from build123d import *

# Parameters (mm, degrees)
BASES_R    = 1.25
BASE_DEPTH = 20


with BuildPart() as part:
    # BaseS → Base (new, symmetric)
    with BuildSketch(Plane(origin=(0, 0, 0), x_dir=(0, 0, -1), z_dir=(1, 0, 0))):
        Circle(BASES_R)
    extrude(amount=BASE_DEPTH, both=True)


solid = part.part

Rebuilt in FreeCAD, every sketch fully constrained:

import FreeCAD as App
import Part
import Sketcher

V = App.Vector
Q = App.Units.Quantity

doc = App.newDocument("Part")
body = doc.addObject("PartDesign::Body", "Body")

# Sketch on YZ plane
sketch1 = body.newObject("Sketcher::SketchObject", "Sketch")
sketch1.AttachmentSupport = (doc.getObject("YZ_Plane"), [""])
sketch1.MapMode = "FlatFace"
sketch1.addGeometry(Part.Circle(V(0, 0, 0), V(0, 0, 1), 1.2), False)
sketch1.addConstraint([
    Sketcher.Constraint("Coincident", 0, 3, -1, 1),
    Sketcher.Constraint("Diameter", 0, Q("2.5 mm")),
])
pad1 = body.newObject("PartDesign::Pad", "Pad")
pad1.Profile = sketch1
pad1.Length = 40
pad1.Midplane = True

doc.recompute()
